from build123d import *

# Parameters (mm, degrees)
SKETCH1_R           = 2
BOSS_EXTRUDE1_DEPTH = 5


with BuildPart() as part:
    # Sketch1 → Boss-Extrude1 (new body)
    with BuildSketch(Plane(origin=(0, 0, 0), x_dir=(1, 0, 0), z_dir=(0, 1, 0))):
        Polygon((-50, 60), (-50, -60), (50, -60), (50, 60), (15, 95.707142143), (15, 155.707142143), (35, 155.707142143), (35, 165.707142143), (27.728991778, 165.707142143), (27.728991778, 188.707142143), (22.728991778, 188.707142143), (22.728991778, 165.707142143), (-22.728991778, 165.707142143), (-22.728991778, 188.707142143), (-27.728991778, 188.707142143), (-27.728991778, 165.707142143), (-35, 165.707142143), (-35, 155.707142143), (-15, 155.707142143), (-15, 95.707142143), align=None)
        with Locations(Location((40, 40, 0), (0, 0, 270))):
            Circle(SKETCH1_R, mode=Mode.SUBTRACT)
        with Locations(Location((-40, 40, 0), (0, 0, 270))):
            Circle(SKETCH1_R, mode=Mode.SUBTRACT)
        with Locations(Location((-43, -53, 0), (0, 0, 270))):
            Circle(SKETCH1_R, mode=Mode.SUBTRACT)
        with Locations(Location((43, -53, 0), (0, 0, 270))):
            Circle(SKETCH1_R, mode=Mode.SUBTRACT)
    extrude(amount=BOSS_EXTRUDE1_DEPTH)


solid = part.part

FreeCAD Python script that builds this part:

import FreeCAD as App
import Part
import Sketcher
from FreeCAD import Vector
Q = App.Units.Quantity

doc = App.newDocument("Part")
body = doc.addObject("PartDesign::Body", "Body")

# Sketch on XZ plane
sketch1 = body.newObject("Sketcher::SketchObject", "Sketch")
sketch1.AttachmentSupport = (doc.getObject("XZ_Plane"), [""])
sketch1.MapMode = "FlatFace"
sketch1.addGeometry([
    Part.LineSegment(Vector(-50, -60, 0), Vector(-50, 60, 0)),  # 0
    Part.LineSegment(Vector(-50, 60, 0), Vector(50, 60, 0)),  # 1
    Part.LineSegment(Vector(50, 60, 0), Vector(50, -60, 0)),  # 2
    Part.LineSegment(Vector(50, -60, 0), Vector(15, -95.707142, 0)),  # 3
    Part.LineSegment(Vector(15, -95.707142, 0), Vector(15, -155.707142, 0)),  # 4
    Part.LineSegment(Vector(15, -155.707142, 0), Vector(35, -155.707142, 0)),  # 5
    Part.LineSegment(Vector(35, -155.707142, 0), Vector(35, -165.707142, 0)),  # 6
    Part.LineSegment(Vector(35, -165.707142, 0), Vector(27.728992, -165.707142, 0)),  # 7
    Part.LineSegment(Vector(27.728992, -165.707142, 0), Vector(27.728992, -188.707142, 0)),  # 8
    Part.LineSegment(Vector(27.728992, -188.707142, 0), Vector(22.728992, -188.707142, 0)),  # 9
    Part.LineSegment(Vector(22.728992, -188.707142, 0), Vector(22.728992, -165.707142, 0)),  # 10
    Part.LineSegment(Vector(22.728992, -165.707142, 0), Vector(-22.728992, -165.707142, 0)),  # 11
    Part.LineSegment(Vector(-22.728992, -165.707142, 0), Vector(-22.728992, -188.707142, 0)),  # 12
    Part.LineSegment(Vector(-22.728992, -188.707142, 0), Vector(-27.728992, -188.707142, 0)),  # 13
    Part.LineSegment(Vector(-27.728992, -188.707142, 0), Vector(-27.728992, -165.707142, 0)),  # 14
    Part.LineSegment(Vector(-27.728992, -165.707142, 0), Vector(-35, -165.707142, 0)),  # 15
    Part.LineSegment(Vector(-35, -165.707142, 0), Vector(-35, -155.707142, 0)),  # 16
    Part.LineSegment(Vector(-35, -155.707142, 0), Vector(-15, -155.707142, 0)),  # 17
    Part.LineSegment(Vector(-15, -155.707142, 0), Vector(-15, -95.707142, 0)),  # 18
    Part.LineSegment(Vector(-15, -95.707142, 0), Vector(-50, -60, 0)),  # 19
    Part.Circle(Vector(-43, 53, 0), Vector(0, 0, 1), 2),  # 20
    Part.Circle(Vector(43, 53, 0), Vector(0, 0, 1), 2),  # 21
    Part.Circle(Vector(-40, -40, 0), Vector(0, 0, 1), 2),  # 22
    Part.Circle(Vector(40, -40, 0), Vector(0, 0, 1), 2),  # 23
], False)
sketch1.addConstraint([
    Sketcher.Constraint("Coincident", 0, 2, 1, 1),
    Sketcher.Constraint("Coincident", 1, 2, 2, 1),
    Sketcher.Constraint("Coincident", 2, 2, 3, 1),
    Sketcher.Constraint("Coincident", 3, 2, 4, 1),
    Sketcher.Constraint("Coincident", 4, 2, 5, 1),
    Sketcher.Constraint("Coincident", 5, 2, 6, 1),
    Sketcher.Constraint("Coincident", 6, 2, 7, 1),
    Sketcher.Constraint("Coincident", 7, 2, 8, 1),
    Sketcher.Constraint("Coincident", 8, 2, 9, 1),
    Sketcher.Constraint("Coincident", 9, 2, 10, 1),
    Sketcher.Constraint("Coincident", 10, 2, 11, 1),
    Sketcher.Constraint("Coincident", 11, 2, 12, 1),
    Sketcher.Constraint("Coincident", 12, 2, 13, 1),
    Sketcher.Constraint("Coincident", 13, 2, 14, 1),
    Sketcher.Constraint("Coincident", 14, 2, 15, 1),
    Sketcher.Constraint("Coincident", 15, 2, 16, 1),
    Sketcher.Constraint("Coincident", 16, 2, 17, 1),
    Sketcher.Constraint("Coincident", 17, 2, 18, 1),
    Sketcher.Constraint("Coincident", 18, 2, 19, 1),
    Sketcher.Constraint("Coincident", 19, 2, 0, 1),
    Sketcher.Constraint("Vertical", 0),
    Sketcher.Constraint("Horizontal", 1),
    Sketcher.Constraint("Vertical", 2),
    Sketcher.Constraint("Vertical", 4),
    Sketcher.Constraint("Horizontal", 5),
    Sketcher.Constraint("Vertical", 6),
    Sketcher.Constraint("Horizontal", 7),
    Sketcher.Constraint("Vertical", 8),
    Sketcher.Constraint("Horizontal", 9),
    Sketcher.Constraint("Vertical", 10),
    Sketcher.Constraint("Horizontal", 11),
    Sketcher.Constraint("Vertical", 12),
    Sketcher.Constraint("Horizontal", 13),
    Sketcher.Constraint("Vertical", 14),
    Sketcher.Constraint("Horizontal", 15),
    Sketcher.Constraint("Vertical", 16),
    Sketcher.Constraint("Horizontal", 17),
    Sketcher.Constraint("Vertical", 18),
    Sketcher.Constraint("Equal", 20, 21),
    Sketcher.Constraint("Equal", 21, 22),
    Sketcher.Constraint("Equal", 22, 23),
    Sketcher.Constraint("Symmetric", 0, 2, 2, 2, -1, 1),
    Sketcher.Constraint("Symmetric", 20, 3, 21, 3, -2),
    Sketcher.Constraint("Symmetric", 22, 3, 23, 3, -2),
    Sketcher.Constraint("Symmetric", 9, 2, 12, 2, -2),
    Sketcher.Constraint("Symmetric", 7, 2, 14, 2, -2),
    Sketcher.Constraint("Symmetric", 5, 2, 16, 2, -2),
    Sketcher.Constraint("Symmetric", 3, 2, 18, 2, -2),
    Sketcher.Constraint("Horizontal", 7, 2, 10, 2),
    Sketcher.Constraint("Horizontal", 2, 2, 19, 2),
    Sketcher.Constraint("Diameter", 20, Q("4 mm")),
    Sketcher.Constraint("DistanceX", 1, 1, 1, 2, Q("100 mm")),
    Sketcher.Constraint("DistanceX", 5, 1, 5, 2, Q("20 mm")),
    Sketcher.Constraint("DistanceX", 9, 2, 9, 1, Q("5 mm")),
    Sketcher.Constraint("DistanceY", 0, 1, 0, 2, Q("120 mm")),
    Sketcher.Constraint("DistanceY", 4, 2, 4, 1, Q("60 mm")),
    Sketcher.Constraint("DistanceY", 6, 2, 6, 1, Q("10 mm")),
    Sketcher.Constraint("DistanceY", 8, 2, 8, 1, Q("23 mm")),
    Sketcher.Constraint("Distance", 3, Q("50 mm")),
    Sketcher.Constraint("DistanceX", 20, 3, -1, 1, Q("43 mm")),
    Sketcher.Constraint("DistanceY", -1, 1, 20, 3, Q("53 mm")),
    Sketcher.Constraint("DistanceX", 22, 3, -1, 1, Q("40 mm")),
    Sketcher.Constraint("DistanceY", 22, 3, -1, 1, Q("40 mm")),
    Sketcher.Constraint("DistanceX", -1, 1, 3, 2, Q("15 mm")),
    Sketcher.Constraint("DistanceX", 7, 2, 7, 1, Q("7.271008 mm")),
])
pad1 = body.newObject("PartDesign::Pad", "Pad")
pad1.Profile = sketch1
pad1.Length = 5
pad1.Reversed = True

doc.recompute()
